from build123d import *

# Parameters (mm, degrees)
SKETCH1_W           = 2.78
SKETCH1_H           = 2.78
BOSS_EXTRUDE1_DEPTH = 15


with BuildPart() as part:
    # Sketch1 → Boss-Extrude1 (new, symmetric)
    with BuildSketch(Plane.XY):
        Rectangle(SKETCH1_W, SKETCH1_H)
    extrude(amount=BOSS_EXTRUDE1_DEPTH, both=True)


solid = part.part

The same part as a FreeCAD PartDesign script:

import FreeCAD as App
import Part
import Sketcher

doc = App.newDocument("Part")
body = doc.addObject("PartDesign::Body", "Body")

# Sketch on XY plane
sketch1 = body.newObject("Sketcher::SketchObject", "Sketch")
sketch1.AttachmentSupport = (doc.getObject("XY_Plane"), [""])
sketch1.MapMode = "FlatFace"
sketch1.addGeometry([
    Part.LineSegment(App.Vector(-1.4, 1.4, 0), App.Vector(-1.4, -1.4, 0)),
    Part.LineSegment(App.Vector(-1.4, -1.4, 0), App.Vector(1.4, -1.4, 0)),
    Part.LineSegment(App.Vector(1.4, -1.4, 0), App.Vector(1.4, 1.4, 0)),
    Part.LineSegment(App.Vector(1.4, 1.4, 0), App.Vector(-1.4, 1.4, 0)),
], False)
sketch1.addConstraint([
    Sketcher.Constraint("Coincident", 0, 2, 1, 1),
    Sketcher.Constraint("Coincident", 1, 2, 2, 1),
    Sketcher.Constraint("Coincident", 2, 2, 3, 1),
    Sketcher.Constraint("Coincident", 3, 2, 0, 1),
    Sketcher.Constraint("Vertical", 0),
    Sketcher.Constraint("Horizontal", 1),
    Sketcher.Constraint("Vertical", 2),
    Sketcher.Constraint("Horizontal", 3),
    Sketcher.Constraint("Symmetric", 0, 2, 2, 2, -1, 1),
    Sketcher.Constraint("Equal", 3, 0),
    Sketcher.Constraint("DistanceX", 1, 1, 1, 2, 2.78),
])
pad1 = body.newObject("PartDesign::Pad", "Pad")
pad1.Profile = sketch1
pad1.Length = 30
pad1.Midplane = True

doc.recompute()
